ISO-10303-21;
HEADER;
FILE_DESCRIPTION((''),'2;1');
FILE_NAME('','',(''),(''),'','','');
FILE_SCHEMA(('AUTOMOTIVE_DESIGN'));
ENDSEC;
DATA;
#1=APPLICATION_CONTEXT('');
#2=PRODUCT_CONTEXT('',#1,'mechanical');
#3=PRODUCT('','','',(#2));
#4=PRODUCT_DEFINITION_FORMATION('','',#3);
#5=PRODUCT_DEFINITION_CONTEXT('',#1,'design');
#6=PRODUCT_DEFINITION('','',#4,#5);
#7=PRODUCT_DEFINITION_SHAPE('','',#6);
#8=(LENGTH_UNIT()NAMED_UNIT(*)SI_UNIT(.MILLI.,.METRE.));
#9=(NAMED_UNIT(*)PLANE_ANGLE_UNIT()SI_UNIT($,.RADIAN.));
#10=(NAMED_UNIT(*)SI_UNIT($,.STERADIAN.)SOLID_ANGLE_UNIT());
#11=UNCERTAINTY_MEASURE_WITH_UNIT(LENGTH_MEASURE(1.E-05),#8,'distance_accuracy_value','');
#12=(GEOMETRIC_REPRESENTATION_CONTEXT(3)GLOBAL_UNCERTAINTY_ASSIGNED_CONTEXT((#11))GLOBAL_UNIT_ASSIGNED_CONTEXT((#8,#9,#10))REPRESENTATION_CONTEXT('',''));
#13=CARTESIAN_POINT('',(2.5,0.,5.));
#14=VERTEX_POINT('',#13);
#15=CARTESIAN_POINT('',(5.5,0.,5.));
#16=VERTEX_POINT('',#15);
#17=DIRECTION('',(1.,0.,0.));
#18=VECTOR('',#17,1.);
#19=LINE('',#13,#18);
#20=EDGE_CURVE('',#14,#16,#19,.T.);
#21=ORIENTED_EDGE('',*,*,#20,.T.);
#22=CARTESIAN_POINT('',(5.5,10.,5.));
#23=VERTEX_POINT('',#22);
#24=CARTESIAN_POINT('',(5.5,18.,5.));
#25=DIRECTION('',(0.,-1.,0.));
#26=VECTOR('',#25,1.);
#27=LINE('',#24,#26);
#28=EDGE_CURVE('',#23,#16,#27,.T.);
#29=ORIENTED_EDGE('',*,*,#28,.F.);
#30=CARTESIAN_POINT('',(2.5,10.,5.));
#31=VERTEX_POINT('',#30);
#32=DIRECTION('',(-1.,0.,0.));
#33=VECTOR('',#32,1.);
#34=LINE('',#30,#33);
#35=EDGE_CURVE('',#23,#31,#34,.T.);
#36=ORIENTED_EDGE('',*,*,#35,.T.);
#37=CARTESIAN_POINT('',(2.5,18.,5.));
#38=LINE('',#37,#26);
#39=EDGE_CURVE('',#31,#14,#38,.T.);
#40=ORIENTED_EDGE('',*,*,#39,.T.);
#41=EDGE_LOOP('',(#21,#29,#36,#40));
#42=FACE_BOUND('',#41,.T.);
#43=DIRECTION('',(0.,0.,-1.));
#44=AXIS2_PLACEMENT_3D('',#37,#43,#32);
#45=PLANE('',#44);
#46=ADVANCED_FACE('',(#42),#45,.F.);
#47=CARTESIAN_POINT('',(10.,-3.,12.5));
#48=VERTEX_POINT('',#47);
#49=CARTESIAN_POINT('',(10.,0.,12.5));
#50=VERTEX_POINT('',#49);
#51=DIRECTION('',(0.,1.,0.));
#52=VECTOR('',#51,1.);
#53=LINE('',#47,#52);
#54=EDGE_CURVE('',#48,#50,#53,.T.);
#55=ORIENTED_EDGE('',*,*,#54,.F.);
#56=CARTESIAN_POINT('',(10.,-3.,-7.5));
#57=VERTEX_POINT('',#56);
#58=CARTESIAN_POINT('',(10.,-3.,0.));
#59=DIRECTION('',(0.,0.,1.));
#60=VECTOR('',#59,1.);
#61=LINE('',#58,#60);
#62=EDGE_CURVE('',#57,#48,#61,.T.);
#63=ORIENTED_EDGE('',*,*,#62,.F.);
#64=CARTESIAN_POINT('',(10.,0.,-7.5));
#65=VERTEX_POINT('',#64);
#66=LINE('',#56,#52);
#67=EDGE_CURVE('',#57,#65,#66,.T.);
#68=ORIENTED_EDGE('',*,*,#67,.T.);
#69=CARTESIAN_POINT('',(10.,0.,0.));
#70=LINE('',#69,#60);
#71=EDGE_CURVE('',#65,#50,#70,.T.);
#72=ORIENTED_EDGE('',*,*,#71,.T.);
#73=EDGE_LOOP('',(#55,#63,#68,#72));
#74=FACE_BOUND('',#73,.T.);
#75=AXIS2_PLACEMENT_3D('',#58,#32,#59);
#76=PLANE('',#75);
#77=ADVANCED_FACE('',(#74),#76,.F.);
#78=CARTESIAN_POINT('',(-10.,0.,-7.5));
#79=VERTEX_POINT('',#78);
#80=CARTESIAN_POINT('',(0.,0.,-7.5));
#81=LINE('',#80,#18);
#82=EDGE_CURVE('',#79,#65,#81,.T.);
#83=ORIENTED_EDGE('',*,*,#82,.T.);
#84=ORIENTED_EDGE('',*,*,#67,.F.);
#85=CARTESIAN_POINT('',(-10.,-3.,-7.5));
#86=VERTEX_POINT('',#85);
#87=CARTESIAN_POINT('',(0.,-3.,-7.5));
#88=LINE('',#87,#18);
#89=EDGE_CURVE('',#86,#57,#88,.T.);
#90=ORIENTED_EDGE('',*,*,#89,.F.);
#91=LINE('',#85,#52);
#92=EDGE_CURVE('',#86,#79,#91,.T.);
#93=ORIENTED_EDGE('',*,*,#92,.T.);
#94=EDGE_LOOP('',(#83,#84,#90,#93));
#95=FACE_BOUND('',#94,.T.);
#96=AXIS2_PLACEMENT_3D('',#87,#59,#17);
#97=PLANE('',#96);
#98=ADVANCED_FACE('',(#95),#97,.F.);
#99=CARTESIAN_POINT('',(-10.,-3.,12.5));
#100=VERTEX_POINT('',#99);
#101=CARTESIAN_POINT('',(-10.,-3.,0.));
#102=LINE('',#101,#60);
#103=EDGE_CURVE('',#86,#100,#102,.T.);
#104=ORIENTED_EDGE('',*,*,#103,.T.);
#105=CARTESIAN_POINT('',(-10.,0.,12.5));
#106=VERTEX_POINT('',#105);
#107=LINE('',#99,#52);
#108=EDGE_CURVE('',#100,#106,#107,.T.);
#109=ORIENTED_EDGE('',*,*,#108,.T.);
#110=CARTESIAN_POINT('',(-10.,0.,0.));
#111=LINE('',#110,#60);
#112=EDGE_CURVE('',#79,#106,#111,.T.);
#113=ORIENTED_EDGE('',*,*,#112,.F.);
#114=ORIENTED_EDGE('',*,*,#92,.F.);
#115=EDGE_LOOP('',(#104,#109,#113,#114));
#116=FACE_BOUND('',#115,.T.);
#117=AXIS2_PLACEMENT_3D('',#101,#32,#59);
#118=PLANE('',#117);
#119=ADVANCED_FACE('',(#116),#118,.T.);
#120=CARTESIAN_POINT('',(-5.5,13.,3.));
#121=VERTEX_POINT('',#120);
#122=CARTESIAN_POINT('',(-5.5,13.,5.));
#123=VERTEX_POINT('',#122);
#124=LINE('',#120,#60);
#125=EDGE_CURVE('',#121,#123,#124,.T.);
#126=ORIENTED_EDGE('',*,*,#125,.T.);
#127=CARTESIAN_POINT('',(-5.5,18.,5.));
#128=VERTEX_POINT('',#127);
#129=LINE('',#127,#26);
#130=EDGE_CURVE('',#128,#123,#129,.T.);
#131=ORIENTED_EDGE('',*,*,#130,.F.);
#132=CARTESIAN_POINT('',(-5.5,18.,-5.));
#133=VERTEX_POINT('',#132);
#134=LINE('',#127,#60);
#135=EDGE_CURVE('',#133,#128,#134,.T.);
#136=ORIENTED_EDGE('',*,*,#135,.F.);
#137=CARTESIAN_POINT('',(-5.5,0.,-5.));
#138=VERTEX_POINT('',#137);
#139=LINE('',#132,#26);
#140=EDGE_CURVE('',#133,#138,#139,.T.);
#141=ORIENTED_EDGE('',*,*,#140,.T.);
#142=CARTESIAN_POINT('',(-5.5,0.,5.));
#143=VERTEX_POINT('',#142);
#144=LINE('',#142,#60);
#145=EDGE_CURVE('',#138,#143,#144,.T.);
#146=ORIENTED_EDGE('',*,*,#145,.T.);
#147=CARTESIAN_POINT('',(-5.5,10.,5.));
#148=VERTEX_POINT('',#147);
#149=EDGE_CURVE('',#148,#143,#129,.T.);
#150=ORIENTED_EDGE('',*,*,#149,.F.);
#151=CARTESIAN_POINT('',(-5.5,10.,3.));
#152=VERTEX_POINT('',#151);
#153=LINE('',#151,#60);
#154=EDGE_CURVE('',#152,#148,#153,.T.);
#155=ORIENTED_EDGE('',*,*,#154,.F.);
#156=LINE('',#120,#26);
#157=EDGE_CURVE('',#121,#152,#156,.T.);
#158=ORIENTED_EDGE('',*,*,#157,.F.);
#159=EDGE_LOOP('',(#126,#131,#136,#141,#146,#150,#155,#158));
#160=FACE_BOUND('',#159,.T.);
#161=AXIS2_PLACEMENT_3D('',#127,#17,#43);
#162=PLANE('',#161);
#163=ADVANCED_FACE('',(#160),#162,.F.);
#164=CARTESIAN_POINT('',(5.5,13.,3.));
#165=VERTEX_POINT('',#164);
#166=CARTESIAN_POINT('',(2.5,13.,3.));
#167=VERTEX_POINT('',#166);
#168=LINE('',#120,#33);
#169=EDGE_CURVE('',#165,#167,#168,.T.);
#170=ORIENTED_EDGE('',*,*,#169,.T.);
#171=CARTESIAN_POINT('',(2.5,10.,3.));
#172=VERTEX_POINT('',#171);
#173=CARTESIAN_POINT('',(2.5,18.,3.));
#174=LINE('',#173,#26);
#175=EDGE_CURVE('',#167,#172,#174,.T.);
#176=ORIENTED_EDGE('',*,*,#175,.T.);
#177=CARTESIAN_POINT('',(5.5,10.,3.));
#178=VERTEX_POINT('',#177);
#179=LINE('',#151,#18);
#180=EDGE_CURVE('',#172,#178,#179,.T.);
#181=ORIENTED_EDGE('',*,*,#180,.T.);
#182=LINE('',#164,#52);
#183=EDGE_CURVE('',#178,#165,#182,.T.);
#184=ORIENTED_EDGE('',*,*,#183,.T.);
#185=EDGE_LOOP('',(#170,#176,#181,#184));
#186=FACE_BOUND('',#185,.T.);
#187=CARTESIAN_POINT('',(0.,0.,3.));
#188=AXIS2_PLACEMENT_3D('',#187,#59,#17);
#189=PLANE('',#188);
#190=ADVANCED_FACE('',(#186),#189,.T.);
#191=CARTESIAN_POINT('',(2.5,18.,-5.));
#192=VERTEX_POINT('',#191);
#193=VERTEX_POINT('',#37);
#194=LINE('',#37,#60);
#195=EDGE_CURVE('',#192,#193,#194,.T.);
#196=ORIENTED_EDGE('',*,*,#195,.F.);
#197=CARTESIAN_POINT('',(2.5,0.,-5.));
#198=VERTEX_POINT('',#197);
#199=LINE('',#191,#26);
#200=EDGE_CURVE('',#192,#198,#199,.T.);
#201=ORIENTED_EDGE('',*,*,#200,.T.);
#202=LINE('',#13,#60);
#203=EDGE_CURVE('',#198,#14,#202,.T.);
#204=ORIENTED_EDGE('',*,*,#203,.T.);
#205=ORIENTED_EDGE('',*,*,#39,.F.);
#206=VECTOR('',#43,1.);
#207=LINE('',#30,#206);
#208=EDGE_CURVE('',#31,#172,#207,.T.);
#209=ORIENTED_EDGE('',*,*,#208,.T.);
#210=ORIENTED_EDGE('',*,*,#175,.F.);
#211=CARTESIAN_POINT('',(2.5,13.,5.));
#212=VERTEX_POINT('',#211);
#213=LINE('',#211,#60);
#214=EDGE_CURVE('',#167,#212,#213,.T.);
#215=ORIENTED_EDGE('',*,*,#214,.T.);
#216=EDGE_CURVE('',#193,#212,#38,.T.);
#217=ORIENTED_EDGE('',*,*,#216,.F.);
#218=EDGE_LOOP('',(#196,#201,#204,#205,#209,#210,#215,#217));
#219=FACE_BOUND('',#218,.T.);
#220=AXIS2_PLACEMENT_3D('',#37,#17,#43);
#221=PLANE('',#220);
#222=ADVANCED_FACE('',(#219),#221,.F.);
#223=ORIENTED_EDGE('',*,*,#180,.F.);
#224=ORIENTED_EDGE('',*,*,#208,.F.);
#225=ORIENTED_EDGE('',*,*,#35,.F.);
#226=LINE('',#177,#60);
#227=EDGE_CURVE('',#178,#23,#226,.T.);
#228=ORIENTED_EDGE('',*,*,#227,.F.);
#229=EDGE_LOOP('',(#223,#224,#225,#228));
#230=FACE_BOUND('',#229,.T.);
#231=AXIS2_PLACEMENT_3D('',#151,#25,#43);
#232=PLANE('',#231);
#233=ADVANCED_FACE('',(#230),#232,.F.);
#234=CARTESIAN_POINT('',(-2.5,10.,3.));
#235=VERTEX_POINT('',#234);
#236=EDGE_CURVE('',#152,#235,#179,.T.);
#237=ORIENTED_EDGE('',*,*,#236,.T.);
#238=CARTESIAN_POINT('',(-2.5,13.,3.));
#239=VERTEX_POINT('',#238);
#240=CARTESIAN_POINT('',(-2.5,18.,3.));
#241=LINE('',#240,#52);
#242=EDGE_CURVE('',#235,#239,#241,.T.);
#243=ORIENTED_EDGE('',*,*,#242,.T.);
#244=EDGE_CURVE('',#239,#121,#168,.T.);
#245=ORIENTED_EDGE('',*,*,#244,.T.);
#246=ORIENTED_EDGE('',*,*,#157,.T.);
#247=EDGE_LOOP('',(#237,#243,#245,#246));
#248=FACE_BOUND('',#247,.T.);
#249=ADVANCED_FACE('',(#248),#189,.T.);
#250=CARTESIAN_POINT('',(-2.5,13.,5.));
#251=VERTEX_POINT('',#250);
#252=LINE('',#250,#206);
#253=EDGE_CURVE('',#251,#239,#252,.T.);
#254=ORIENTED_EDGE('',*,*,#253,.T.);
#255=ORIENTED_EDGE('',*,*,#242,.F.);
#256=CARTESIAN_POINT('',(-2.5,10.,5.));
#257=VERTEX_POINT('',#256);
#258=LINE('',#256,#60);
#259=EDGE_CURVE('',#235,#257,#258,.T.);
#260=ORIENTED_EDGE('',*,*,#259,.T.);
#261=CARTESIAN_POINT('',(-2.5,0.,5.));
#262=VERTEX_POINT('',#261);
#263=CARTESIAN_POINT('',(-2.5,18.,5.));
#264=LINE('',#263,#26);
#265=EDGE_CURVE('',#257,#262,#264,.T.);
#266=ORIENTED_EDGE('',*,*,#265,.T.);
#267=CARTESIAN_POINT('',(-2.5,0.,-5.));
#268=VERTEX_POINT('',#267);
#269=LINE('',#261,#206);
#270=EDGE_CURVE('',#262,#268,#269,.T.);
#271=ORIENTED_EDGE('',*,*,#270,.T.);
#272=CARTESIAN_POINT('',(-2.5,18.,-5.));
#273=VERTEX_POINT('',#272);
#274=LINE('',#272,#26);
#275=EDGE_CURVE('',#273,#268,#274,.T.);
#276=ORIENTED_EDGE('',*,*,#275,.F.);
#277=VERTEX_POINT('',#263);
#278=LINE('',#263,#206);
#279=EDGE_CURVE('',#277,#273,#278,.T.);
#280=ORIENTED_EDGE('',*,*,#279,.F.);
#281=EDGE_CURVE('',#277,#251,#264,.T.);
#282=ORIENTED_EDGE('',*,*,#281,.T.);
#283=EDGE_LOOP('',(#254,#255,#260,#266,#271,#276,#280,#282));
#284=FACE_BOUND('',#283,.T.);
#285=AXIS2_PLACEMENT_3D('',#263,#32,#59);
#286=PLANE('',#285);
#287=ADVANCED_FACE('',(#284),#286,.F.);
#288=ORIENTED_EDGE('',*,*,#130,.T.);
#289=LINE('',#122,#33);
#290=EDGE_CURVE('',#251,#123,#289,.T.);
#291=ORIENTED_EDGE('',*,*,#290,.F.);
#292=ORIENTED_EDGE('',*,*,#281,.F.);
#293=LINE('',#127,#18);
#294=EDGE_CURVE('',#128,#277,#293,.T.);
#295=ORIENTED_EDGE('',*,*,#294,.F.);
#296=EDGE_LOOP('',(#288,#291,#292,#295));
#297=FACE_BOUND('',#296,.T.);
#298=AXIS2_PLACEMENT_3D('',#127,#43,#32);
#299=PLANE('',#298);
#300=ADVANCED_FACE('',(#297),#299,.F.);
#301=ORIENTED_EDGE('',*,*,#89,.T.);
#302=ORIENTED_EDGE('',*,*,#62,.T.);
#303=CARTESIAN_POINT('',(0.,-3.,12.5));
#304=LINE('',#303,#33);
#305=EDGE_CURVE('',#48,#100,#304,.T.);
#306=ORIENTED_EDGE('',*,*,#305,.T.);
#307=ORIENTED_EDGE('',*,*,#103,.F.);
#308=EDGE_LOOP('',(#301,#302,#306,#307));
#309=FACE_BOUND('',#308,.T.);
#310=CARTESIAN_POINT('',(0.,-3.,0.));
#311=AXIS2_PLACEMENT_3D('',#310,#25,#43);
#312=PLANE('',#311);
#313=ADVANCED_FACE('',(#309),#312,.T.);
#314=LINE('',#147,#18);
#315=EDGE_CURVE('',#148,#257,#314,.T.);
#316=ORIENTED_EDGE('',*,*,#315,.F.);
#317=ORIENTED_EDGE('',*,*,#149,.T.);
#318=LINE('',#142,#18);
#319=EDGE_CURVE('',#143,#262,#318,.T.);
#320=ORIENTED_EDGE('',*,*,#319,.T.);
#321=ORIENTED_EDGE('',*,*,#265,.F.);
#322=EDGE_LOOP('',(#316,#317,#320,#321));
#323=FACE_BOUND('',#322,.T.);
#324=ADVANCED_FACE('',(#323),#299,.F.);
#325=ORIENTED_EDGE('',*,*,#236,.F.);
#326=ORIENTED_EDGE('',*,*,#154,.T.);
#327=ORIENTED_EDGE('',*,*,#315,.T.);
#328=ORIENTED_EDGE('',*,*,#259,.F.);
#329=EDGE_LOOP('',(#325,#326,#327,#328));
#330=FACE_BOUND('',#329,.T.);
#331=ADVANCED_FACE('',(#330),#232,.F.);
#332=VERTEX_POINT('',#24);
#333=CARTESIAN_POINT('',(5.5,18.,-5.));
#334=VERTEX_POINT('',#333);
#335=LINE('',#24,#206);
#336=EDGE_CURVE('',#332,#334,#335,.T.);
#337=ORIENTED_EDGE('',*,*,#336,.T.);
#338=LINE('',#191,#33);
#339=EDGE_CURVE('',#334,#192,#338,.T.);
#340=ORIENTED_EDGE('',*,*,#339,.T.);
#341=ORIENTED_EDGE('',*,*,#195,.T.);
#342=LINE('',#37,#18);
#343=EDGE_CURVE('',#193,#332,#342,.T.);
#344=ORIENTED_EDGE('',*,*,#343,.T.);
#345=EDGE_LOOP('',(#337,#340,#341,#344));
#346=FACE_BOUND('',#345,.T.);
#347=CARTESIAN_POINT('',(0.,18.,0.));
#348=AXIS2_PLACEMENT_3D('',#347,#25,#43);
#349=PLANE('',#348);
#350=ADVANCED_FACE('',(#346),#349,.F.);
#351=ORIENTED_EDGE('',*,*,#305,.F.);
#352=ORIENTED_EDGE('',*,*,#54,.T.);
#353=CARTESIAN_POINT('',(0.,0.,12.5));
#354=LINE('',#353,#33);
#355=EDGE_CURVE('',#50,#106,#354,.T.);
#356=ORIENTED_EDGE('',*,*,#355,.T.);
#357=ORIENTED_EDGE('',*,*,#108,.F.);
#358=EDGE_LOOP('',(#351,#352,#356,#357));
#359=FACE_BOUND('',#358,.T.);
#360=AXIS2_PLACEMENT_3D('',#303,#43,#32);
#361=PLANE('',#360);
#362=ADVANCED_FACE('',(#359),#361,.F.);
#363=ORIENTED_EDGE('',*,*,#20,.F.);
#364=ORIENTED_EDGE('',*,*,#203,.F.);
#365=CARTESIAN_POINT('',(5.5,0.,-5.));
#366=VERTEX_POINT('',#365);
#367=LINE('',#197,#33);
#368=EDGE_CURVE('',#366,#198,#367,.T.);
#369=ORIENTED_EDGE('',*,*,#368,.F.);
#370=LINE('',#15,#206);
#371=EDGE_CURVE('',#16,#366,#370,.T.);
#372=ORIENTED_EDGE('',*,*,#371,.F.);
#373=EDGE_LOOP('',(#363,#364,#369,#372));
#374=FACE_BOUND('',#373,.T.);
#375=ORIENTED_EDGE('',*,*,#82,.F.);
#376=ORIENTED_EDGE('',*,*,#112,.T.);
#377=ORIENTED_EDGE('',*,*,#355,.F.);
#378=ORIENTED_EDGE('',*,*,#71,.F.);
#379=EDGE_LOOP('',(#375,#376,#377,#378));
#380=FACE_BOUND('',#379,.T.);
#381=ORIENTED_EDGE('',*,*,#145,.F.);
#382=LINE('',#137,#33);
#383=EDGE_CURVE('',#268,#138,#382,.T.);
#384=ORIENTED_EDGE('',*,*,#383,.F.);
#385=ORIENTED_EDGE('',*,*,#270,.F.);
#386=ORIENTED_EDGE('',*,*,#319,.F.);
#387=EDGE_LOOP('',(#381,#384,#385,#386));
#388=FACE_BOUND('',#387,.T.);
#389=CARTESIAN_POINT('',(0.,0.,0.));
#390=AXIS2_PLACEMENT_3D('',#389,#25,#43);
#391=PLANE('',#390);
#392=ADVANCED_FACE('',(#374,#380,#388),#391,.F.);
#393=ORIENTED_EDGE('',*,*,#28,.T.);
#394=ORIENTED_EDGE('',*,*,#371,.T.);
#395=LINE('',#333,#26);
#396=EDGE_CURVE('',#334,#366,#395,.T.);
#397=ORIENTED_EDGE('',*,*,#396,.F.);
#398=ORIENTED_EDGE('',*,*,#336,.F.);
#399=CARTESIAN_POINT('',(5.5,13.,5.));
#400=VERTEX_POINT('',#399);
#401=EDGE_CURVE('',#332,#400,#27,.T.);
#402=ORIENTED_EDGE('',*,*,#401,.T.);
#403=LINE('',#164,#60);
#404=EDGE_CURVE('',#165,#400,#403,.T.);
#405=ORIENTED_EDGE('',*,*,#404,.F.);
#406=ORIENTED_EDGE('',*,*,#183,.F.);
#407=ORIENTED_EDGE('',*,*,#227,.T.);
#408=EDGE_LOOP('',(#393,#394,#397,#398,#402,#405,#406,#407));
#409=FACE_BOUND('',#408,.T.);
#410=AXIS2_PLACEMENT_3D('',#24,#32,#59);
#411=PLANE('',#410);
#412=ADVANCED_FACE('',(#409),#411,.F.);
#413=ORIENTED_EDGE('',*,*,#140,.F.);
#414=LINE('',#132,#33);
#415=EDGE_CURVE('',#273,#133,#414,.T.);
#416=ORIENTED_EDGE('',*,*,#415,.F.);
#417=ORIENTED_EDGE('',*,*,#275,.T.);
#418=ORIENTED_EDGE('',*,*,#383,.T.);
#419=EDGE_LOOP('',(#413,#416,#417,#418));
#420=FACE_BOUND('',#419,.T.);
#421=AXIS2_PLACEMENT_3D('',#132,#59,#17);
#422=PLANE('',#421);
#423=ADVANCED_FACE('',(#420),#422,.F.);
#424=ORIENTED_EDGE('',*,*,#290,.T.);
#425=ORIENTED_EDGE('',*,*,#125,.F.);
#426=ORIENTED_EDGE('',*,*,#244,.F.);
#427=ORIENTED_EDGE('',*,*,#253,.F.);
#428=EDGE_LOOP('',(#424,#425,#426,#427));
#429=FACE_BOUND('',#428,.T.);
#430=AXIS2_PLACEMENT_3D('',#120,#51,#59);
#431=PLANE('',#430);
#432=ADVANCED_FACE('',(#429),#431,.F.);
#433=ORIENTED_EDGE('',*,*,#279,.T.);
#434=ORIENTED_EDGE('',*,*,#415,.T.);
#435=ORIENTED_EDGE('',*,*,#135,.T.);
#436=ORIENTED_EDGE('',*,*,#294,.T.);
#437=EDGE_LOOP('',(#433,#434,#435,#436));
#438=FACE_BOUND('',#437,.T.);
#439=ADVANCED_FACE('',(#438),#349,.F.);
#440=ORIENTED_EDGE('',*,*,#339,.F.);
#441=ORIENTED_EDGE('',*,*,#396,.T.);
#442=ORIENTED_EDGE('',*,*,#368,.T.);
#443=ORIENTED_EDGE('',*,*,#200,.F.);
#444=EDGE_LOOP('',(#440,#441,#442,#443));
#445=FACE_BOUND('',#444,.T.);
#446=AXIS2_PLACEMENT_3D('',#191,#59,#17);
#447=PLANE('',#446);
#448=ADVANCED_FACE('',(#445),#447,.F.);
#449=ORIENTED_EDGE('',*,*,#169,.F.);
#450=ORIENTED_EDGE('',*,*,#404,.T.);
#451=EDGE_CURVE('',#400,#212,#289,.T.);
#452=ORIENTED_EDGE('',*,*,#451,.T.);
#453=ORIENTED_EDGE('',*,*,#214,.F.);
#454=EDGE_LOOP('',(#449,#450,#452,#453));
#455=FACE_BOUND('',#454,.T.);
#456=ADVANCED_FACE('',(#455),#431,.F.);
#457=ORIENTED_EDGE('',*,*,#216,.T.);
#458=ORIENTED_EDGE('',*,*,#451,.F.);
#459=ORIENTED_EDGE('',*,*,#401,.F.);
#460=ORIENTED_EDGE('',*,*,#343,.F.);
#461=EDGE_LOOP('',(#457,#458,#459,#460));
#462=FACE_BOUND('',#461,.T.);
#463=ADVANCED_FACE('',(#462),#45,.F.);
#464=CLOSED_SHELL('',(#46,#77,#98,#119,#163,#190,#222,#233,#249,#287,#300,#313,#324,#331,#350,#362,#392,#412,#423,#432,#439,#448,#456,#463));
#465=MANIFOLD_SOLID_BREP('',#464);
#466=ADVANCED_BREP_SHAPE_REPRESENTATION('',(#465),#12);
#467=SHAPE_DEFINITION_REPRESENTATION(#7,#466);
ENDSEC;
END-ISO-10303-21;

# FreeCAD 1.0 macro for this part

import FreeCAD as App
import Part
import Sketcher


def add_polygon(sketch, points):
    """Adds a closed chain of lines whose ends are joined by coincident constraints."""
    first, n = sketch.GeometryCount, len(points)
    for a, b in zip(points, points[1:] + points[:1]):
        sketch.addGeometry(Part.LineSegment(App.Vector(*a, 0), App.Vector(*b, 0)), False)
    for i in range(n):
        sketch.addConstraint(Sketcher.Constraint("Coincident", first + i, 2, first + (i + 1) % n, 1))

doc = App.newDocument("Part")
body = doc.addObject("PartDesign::Body", "Body")

# Sketch on XZ plane
sketch1 = body.newObject("Sketcher::SketchObject", "Sketch")
sketch1.AttachmentSupport = (doc.getObject("XZ_Plane"), [""])
sketch1.MapMode = "FlatFace"
add_polygon(sketch1, [(-5.5, -5), (-5.5, 5), (-2.5, 5), (-2.5, -5)])  # lines 0-3
sketch1.addConstraint(Sketcher.Constraint("Vertical", 0))
sketch1.addConstraint(Sketcher.Constraint("Horizontal", 1))
sketch1.addConstraint(Sketcher.Constraint("Vertical", 2))
sketch1.addConstraint(Sketcher.Constraint("Horizontal", 3))
sketch1.addConstraint(Sketcher.Constraint("DistanceX", 1, 1, 1, 2, 3.0))
sketch1.addConstraint(Sketcher.Constraint("DistanceY", 0, 1, 0, 2, 10.0))
sketch1.addConstraint(Sketcher.Constraint("DistanceY", -1, 1, 0, 2, 5.0))
sketch1.addConstraint(Sketcher.Constraint("DistanceX", 0, 2, -1, 1, 5.5))
pad1 = body.newObject("PartDesign::Pad", "Pad")
pad1.Profile = sketch1
pad1.Length = 18
pad1.Reversed = True
body2 = doc.addObject("PartDesign::Body", "Body001")

# Sketch on XZ plane
sketch2 = body2.newObject("Sketcher::SketchObject", "Sketch001")
sketch2.AttachmentSupport = (doc.getObject("XZ_Plane001"), [""])
sketch2.MapMode = "FlatFace"
add_polygon(sketch2, [(2.5, -5), (2.5, 5), (5.5, 5), (5.5, -5)])  # lines 0-3
sketch2.addConstraint(Sketcher.Constraint("Vertical", 0))
sketch2.addConstraint(Sketcher.Constraint("Horizontal", 1))
sketch2.addConstraint(Sketcher.Constraint("Vertical", 2))
sketch2.addConstraint(Sketcher.Constraint("Horizontal", 3))
sketch2.addConstraint(Sketcher.Constraint("DistanceX", 1, 1, 1, 2, 3.0))
sketch2.addConstraint(Sketcher.Constraint("DistanceY", 0, 1, 0, 2, 10.0))
sketch2.addConstraint(Sketcher.Constraint("DistanceY", -1, 1, 0, 2, 5.0))
sketch2.addConstraint(Sketcher.Constraint("DistanceX", -1, 1, 0, 2, 2.5))
pad2 = body2.newObject("PartDesign::Pad", "Pad001")
pad2.Profile = sketch2
pad2.Length = 18
pad2.Reversed = True
body.AllowCompound = True
doc.recompute()

boolean = body.newObject("PartDesign::Boolean", "Boolean")
boolean.Type = "Fuse"
boolean.addObjects([body2])

# Sketch on XZ plane
sketch3 = body.newObject("Sketcher::SketchObject", "Sketch002")
sketch3.AttachmentSupport = (doc.getObject("XZ_Plane"), [""])
sketch3.MapMode = "FlatFace"
add_polygon(sketch3, [(-10, 12), (-10, -8), (10, -8), (10, 12)])  # lines 0-3
sketch3.addConstraint(Sketcher.Constraint("Vertical", 0))
sketch3.addConstraint(Sketcher.Constraint("Horizontal", 1))
sketch3.addConstraint(Sketcher.Constraint("Vertical", 2))
sketch3.addConstraint(Sketcher.Constraint("Horizontal", 3))
sketch3.addConstraint(Sketcher.Constraint("Equal", 3, 0))
sketch3.addConstraint(Sketcher.Constraint("DistanceX", 1, 1, 1, 2, 20.0))
sketch3.addConstraint(Sketcher.Constraint("DistanceX", 0, 2, -1, 1, 10.0))
sketch3.addConstraint(Sketcher.Constraint("DistanceY", 0, 2, -1, 1, 7.5))
pad3 = body.newObject("PartDesign::Pad", "Pad002")
pad3.Profile = sketch3
pad3.Length = 3

# Sketch on XY plane
sketch4 = body.newObject("Sketcher::SketchObject", "Sketch003")
sketch4.AttachmentSupport = (doc.getObject("XY_Plane"), [""])
sketch4.MapMode = "FlatFace"
sketch4.AttachmentOffset = App.Placement(App.Vector(0, 0, 5), App.Rotation())
add_polygon(sketch4, [(-5.5, 13), (-5.5, 10), (5.5, 10), (5.5, 13)])  # lines 0-3
sketch4.addConstraint(Sketcher.Constraint("Vertical", 0))
sketch4.addConstraint(Sketcher.Constraint("Horizontal", 1))
sketch4.addConstraint(Sketcher.Constraint("Vertical", 2))
sketch4.addConstraint(Sketcher.Constraint("Horizontal", 3))
sketch4.addConstraint(Sketcher.Constraint("DistanceX", 1, 1, 1, 2, 11.0))
sketch4.addConstraint(Sketcher.Constraint("DistanceY", 0, 2, 0, 1, 3.0))
sketch4.addConstraint(Sketcher.Constraint("DistanceY", -1, 1, 0, 2, 10.0))
sketch4.addConstraint(Sketcher.Constraint("DistanceX", 0, 2, -1, 1, 5.5))
pocket1 = body.newObject("PartDesign::Pocket", "Pocket")
pocket1.Profile = sketch4
pocket1.Length = 2

doc.recompute()
